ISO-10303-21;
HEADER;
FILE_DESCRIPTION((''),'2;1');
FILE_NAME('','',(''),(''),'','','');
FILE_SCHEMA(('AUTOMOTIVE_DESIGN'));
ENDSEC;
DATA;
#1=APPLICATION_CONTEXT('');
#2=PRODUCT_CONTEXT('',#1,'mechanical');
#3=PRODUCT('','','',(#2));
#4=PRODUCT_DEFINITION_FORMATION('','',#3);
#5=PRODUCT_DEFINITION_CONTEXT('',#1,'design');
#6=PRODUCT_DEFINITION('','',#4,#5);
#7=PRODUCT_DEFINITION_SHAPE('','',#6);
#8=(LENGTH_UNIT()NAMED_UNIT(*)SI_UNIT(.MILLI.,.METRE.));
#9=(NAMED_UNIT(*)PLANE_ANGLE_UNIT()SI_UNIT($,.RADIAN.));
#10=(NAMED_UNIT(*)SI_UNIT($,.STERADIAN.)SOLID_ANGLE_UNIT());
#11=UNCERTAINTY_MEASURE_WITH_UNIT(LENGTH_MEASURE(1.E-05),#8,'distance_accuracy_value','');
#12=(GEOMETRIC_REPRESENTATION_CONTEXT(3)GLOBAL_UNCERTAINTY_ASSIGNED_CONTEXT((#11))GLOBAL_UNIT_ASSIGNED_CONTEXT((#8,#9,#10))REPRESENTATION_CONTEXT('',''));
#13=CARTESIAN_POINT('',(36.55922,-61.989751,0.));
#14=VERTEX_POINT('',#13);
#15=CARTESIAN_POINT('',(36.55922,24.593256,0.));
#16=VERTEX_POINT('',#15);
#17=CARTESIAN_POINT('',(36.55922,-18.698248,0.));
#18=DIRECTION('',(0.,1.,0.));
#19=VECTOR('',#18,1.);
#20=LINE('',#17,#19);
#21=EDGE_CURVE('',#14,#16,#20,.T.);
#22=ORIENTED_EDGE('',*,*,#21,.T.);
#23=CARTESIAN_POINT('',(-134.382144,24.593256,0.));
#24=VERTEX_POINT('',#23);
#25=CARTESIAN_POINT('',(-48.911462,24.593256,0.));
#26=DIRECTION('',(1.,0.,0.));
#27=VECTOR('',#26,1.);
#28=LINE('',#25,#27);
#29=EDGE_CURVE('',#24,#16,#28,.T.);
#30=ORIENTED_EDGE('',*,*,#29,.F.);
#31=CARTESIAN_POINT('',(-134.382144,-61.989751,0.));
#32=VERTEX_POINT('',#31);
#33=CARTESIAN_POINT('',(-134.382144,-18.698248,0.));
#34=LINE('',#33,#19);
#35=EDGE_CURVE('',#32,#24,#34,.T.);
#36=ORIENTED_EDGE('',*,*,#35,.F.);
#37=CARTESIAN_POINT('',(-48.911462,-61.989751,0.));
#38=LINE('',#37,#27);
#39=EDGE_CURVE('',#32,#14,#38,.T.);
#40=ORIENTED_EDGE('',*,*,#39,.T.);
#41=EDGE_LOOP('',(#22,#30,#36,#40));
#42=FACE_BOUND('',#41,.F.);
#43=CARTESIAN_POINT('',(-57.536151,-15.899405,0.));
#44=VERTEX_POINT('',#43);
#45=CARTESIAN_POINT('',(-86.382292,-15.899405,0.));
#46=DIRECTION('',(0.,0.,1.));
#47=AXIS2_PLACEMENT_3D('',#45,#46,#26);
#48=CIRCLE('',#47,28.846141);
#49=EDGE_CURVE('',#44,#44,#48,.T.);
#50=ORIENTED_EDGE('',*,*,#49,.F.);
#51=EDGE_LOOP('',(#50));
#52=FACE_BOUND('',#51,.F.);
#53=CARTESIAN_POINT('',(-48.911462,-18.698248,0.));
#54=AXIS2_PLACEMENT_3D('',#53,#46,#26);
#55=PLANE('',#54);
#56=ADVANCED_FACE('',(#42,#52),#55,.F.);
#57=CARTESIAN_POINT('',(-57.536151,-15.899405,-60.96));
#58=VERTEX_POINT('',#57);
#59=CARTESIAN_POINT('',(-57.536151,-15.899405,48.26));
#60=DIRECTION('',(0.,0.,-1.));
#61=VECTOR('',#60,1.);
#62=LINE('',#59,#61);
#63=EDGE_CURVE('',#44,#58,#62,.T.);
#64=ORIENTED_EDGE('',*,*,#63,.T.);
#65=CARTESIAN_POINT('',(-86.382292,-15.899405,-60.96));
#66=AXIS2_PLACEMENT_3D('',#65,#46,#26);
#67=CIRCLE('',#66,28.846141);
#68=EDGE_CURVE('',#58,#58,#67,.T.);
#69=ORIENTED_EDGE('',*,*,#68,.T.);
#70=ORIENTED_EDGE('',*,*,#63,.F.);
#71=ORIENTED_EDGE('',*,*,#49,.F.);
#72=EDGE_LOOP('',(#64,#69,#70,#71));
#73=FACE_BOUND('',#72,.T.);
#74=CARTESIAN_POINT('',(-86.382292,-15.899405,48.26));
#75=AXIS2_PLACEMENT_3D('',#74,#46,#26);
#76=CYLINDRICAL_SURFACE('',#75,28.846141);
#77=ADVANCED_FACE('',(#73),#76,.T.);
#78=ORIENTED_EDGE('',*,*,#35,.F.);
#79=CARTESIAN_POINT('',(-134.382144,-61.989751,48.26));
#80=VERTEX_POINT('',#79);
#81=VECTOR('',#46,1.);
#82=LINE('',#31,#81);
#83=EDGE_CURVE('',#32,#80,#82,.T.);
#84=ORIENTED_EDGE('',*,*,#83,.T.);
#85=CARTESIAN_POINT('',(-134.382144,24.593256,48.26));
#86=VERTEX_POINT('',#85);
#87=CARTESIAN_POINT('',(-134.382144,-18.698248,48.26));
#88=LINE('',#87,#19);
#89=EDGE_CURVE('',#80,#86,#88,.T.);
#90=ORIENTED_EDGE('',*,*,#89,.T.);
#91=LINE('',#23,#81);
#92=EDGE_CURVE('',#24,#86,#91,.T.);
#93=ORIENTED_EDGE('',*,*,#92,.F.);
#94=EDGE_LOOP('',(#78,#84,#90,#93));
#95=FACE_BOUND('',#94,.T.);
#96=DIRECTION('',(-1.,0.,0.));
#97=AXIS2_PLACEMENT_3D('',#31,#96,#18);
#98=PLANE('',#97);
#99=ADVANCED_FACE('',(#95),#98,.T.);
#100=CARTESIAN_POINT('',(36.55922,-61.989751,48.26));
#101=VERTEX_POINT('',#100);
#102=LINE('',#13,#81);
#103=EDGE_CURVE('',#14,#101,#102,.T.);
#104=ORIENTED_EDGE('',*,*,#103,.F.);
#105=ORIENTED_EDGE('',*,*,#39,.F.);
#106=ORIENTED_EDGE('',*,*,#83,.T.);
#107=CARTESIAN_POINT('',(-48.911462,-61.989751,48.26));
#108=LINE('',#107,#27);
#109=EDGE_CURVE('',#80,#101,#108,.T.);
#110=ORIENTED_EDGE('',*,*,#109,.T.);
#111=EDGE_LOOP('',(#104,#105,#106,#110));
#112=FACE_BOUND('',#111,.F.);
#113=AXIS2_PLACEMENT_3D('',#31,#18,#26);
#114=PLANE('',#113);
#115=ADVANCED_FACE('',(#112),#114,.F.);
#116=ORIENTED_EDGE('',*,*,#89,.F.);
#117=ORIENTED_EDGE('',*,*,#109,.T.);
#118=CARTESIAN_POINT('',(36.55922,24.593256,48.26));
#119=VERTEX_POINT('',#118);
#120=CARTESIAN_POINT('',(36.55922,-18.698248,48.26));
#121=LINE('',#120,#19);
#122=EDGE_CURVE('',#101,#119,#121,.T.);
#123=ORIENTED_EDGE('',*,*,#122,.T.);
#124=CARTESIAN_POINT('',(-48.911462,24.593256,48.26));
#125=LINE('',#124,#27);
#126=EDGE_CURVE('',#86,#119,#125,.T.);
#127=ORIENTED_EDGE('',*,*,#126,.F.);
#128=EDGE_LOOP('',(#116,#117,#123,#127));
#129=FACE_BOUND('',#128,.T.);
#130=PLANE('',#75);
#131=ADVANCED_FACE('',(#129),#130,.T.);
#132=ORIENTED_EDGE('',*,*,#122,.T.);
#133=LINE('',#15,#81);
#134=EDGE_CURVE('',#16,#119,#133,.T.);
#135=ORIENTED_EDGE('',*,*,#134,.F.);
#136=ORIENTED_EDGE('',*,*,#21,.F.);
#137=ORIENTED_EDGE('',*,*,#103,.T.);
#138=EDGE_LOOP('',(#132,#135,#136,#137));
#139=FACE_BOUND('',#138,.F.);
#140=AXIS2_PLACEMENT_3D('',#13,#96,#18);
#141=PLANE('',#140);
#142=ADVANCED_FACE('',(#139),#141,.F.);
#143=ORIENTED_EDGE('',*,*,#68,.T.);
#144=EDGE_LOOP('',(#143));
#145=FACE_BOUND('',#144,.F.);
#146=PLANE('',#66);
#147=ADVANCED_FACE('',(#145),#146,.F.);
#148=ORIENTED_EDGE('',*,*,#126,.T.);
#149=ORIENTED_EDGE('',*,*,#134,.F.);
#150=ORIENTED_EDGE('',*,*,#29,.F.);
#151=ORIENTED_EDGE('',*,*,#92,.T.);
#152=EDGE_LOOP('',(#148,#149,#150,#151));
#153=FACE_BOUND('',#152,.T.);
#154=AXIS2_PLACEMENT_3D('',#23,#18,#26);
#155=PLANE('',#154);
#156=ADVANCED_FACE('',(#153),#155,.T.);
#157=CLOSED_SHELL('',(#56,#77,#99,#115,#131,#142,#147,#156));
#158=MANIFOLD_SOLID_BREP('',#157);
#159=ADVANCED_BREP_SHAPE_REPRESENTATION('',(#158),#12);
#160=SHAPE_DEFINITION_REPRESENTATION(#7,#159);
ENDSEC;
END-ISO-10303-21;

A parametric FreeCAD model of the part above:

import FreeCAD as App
import Part
import Sketcher
from FreeCAD import Vector
Q = App.Units.Quantity


def add_polygon(sketch, points):
    """Adds a closed chain of lines whose ends are joined by coincident constraints."""
    first, n = sketch.GeometryCount, len(points)
    for a, b in zip(points, points[1:] + points[:1]):
        sketch.addGeometry(Part.LineSegment(App.Vector(*a, 0), App.Vector(*b, 0)), False)
    for i in range(n):
        sketch.addConstraint(Sketcher.Constraint("Coincident", first + i, 2, first + (i + 1) % n, 1))

doc = App.newDocument("Part")
body = doc.addObject("PartDesign::Body", "Body")

sketch1 = doc.addObject("Sketcher::SketchObject", "Sketch")
body.addObject(sketch1)
sketch1.AttachmentSupport = (doc.XY_Plane, [""])
sketch1.MapMode = "FlatFace"
add_polygon(sketch1, [(-134, 25), (-134, -62), (37, -62), (37, 25)])
sketch1.addConstraint([
    Sketcher.Constraint("Vertical", 0),
    Sketcher.Constraint("Horizontal", 1),
    Sketcher.Constraint("Vertical", 2),
    Sketcher.Constraint("Horizontal", 3),
    Sketcher.Constraint("DistanceX", 1, 1, 1, 2, Q("170.941364 mm")),
    Sketcher.Constraint("DistanceY", 0, 2, 0, 1, Q("86.583007 mm")),
    Sketcher.Constraint("DistanceY", 0, 2, -1, 1, Q("61.989751 mm")),
    Sketcher.Constraint("DistanceX", -1, 1, 1, 2, Q("36.55922 mm")),
])
pad1 = doc.addObject("PartDesign::Pad", "Pad")
body.addObject(pad1)
pad1.Profile = sketch1
pad1.Length = Q("1.9 in")

sketch2 = doc.addObject("Sketcher::SketchObject", "Sketch001")
body.addObject(sketch2)
sketch2.AttachmentSupport = (doc.XY_Plane, [""])
sketch2.MapMode = "FlatFace"
sketch2.AttachmentOffset = App.Placement(Vector(0, 0, 1.9 * 25.4), App.Rotation())
sketch2.addGeometry(Part.Circle(Vector(-86, -16, 0), Vector(0, 0, 1), 29), False)
sketch2.addConstraint([
    Sketcher.Constraint("Diameter", 0, Q("57.692282 mm")),
    Sketcher.Constraint("DistanceX", 0, 3, -1, 1, Q("86.382292 mm")),
    Sketcher.Constraint("DistanceY", 0, 3, -1, 1, Q("15.899405 mm")),
])
pad2 = doc.addObject("PartDesign::Pad", "Pad001")
body.addObject(pad2)
pad2.Profile = sketch2
pad2.Length = Q("4.3 in")
pad2.Reversed = True

doc.recompute()
